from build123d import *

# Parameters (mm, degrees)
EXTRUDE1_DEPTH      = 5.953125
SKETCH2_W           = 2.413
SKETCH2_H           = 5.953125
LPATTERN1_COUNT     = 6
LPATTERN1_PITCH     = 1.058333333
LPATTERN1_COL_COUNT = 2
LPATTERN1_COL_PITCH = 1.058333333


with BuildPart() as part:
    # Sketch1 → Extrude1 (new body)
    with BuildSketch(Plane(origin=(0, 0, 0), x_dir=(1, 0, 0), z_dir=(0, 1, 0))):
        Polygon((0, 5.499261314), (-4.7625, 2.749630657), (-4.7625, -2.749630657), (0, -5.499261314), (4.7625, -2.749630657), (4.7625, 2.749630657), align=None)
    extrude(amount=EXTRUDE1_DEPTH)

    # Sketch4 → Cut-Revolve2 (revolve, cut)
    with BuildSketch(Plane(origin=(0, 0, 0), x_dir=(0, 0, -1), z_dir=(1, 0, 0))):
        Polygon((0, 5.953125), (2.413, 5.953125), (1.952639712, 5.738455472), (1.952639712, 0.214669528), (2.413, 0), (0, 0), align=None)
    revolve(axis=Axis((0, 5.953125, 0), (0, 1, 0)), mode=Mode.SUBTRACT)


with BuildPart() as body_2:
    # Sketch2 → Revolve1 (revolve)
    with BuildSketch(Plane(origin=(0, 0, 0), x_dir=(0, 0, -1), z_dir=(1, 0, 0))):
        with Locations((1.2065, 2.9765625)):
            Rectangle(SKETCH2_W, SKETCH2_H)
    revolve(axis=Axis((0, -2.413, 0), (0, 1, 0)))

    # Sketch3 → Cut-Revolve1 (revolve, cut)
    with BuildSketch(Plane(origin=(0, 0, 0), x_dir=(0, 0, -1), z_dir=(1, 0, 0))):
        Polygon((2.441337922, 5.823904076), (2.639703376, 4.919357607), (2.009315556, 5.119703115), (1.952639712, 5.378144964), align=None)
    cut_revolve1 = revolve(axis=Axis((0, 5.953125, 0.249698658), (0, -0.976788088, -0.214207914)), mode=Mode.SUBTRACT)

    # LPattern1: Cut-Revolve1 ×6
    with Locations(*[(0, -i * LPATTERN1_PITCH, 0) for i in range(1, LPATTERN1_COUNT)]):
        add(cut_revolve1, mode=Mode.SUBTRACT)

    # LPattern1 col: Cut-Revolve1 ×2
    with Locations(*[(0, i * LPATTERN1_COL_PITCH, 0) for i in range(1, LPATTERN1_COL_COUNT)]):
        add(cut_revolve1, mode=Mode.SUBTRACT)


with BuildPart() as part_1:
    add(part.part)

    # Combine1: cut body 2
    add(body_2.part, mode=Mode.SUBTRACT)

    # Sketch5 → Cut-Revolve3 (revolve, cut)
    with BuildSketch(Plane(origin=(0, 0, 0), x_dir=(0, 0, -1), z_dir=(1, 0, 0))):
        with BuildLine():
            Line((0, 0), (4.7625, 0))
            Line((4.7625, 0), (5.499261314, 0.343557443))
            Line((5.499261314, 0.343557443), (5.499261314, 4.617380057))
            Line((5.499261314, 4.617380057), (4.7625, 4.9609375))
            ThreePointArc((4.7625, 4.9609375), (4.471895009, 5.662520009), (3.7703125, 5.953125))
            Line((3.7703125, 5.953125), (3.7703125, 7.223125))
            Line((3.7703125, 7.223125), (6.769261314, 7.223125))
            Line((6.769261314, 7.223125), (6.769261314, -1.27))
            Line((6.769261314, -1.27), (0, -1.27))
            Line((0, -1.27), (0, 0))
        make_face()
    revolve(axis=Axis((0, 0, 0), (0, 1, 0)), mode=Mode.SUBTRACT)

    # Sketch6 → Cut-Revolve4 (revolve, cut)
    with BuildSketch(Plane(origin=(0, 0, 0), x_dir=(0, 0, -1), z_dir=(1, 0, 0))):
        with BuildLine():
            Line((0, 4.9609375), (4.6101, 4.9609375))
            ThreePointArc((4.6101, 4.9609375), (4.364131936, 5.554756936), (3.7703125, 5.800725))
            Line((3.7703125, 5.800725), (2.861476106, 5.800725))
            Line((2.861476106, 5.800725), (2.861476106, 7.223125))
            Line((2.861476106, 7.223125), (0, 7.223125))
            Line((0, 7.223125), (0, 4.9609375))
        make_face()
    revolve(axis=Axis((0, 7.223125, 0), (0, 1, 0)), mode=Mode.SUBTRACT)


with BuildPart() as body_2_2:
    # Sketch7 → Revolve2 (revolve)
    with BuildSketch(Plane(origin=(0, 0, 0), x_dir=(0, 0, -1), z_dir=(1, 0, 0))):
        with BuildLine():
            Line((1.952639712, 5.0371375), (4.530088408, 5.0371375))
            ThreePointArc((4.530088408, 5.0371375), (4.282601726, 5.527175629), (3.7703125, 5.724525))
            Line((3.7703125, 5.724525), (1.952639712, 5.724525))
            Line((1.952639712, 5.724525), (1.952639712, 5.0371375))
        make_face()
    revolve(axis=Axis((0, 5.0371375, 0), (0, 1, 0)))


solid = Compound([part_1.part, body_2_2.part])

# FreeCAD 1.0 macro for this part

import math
import FreeCAD as App
import Part
import Sketcher
from FreeCAD import Vector
Q = App.Units.Quantity


def add_polygon(sketch, points):
    """Adds a closed chain of lines whose ends are joined by coincident constraints."""
    first, n = sketch.GeometryCount, len(points)
    for a, b in zip(points, points[1:] + points[:1]):
        sketch.addGeometry(Part.LineSegment(App.Vector(*a, 0), App.Vector(*b, 0)), False)
    for i in range(n):
        sketch.addConstraint(Sketcher.Constraint("Coincident", first + i, 2, first + (i + 1) % n, 1))

doc = App.newDocument("Part")
body = doc.addObject("PartDesign::Body", "Body")

# Sketch on XZ plane
sketch1 = body.newObject("Sketcher::SketchObject", "Sketch")
sketch1.AttachmentSupport = (doc.getObject("XZ_Plane"), [""])
sketch1.MapMode = "FlatFace"
add_polygon(sketch1, [(0, -5.499261), (-4.7625, -2.749631), (-4.7625, 2.749631), (0, 5.499261), (4.7625, 2.749631), (4.7625, -2.749631)])  # lines 0-5
sketch1.addConstraint([
    Sketcher.Constraint("Vertical", 1),
    Sketcher.Constraint("Vertical", 4),
    Sketcher.Constraint("Symmetric", 0, 2, 3, 2, -1, 1),
    Sketcher.Constraint("Symmetric", 2, 2, 5, 2, -1, 1),
    Sketcher.Constraint("PointOnObject", 2, 2, -2),
    Sketcher.Constraint("Parallel", 2, 5),
    Sketcher.Constraint("Horizontal", 1, 2, 3, 2),
    Sketcher.Constraint("Angle", 0, Q("150 deg")),
    Sketcher.Constraint("DistanceX", 0, 2, -1, 1, Q("0.1875 in")),
    Sketcher.Constraint("DistanceY", 1, 1, 1, 2, 5.499261),
])
pad1 = body.newObject("PartDesign::Pad", "Pad")
pad1.Profile = sketch1
pad1.Length = Q("0.234375 in")
pad1.Reversed = True

# Sketch on YZ plane
sketch2 = body.newObject("Sketcher::SketchObject", "Sketch001")
sketch2.AttachmentSupport = (doc.getObject("YZ_Plane"), [""])
sketch2.MapMode = "FlatFace"
add_polygon(sketch2, [(5.953125, -2.413), (5.953125, 0), (0, 0), (0, -2.413), (0.21467, -1.95264), (5.738455, -1.95264)])  # lines 0-5
sketch2.addConstraint([
    Sketcher.Constraint("Vertical", 0),
    Sketcher.Constraint("Horizontal", 1),
    Sketcher.Constraint("Vertical", 2),
    Sketcher.Constraint("Horizontal", 4),
    Sketcher.Constraint("Coincident", 1, 2, -1, 1),
    Sketcher.Constraint("Horizontal", 2, 2, 5, 2),
    Sketcher.Constraint("Equal", 3, 5),
    Sketcher.Constraint("Angle", 3, Q("65 deg")),
    Sketcher.Constraint("DistanceX", 1, 2, 1, 1, Q("0.234375 in")),
    Sketcher.Constraint("DistanceY", 0, 1, 0, 2, Q("0.095 in")),
    Sketcher.Constraint("Distance", 3, 0.507951),
])
groove = body.newObject("PartDesign::Groove", "Groove")
groove.Profile = sketch2
groove.ReferenceAxis = (sketch2, ["H_Axis"])
groove.Angle = 360
body2 = doc.addObject("PartDesign::Body", "Body001")

# Sketch on YZ plane
sketch3 = body2.newObject("Sketcher::SketchObject", "Sketch002")
sketch3.AttachmentSupport = (doc.getObject("YZ_Plane001"), [""])
sketch3.MapMode = "FlatFace"
add_polygon(sketch3, [(5.953125, 0), (0, 0), (0, -2.413), (5.953125, -2.413)])  # lines 0-3
sketch3.addConstraint([
    Sketcher.Constraint("Horizontal", 0),
    Sketcher.Constraint("Vertical", 1),
    Sketcher.Constraint("Horizontal", 2),
    Sketcher.Constraint("Vertical", 3),
    Sketcher.Constraint("Coincident", 0, 2, -1, 1),
    Sketcher.Constraint("DistanceX", 0, 2, 0, 1, Q("0.234375 in")),
    Sketcher.Constraint("DistanceY", 1, 2, 1, 1, Q("0.095 in")),
])
revolution = body2.newObject("PartDesign::Revolution", "Revolution")
revolution.Profile = sketch3
revolution.ReferenceAxis = (sketch3, ["H_Axis"])
revolution.Angle = 360

# Sketch on YZ plane
sketch4 = body2.newObject("Sketcher::SketchObject", "Sketch003")
sketch4.AttachmentSupport = (doc.getObject("YZ_Plane001"), [""])
sketch4.MapMode = "FlatFace"
add_polygon(sketch4, [(4.919358, -2.639703), (5.823904, -2.441338), (5.378145, -1.95264), (5.119703, -2.009316)])  # lines 0-3
sketch4.addGeometry(Part.LineSegment(Vector(5.266772, 0.099183, 0), Vector(4.362226, -0.099183, 0)), True)  # axis
sketch4.addConstraint([
    Sketcher.Constraint("Parallel", 0, 2),
    Sketcher.Constraint("Parallel", 2, 4),
    Sketcher.Constraint("Equal", 1, 3),
    Sketcher.Constraint("Equal", 0, 4),
    Sketcher.Constraint("DistanceY", 0, 2, 1, 2, 0.488698),
    Sketcher.Constraint("DistanceX", 2, 2, 0, 2, 0.704201),
    Sketcher.Constraint("DistanceY", 2, 2, 4, 1, 2.108498),
    Sketcher.Constraint("Distance", 0, 0.926042),
    Sketcher.Constraint("Distance", 1, 0.661458),
    Sketcher.Constraint("DistanceY", 1, 2, -1, 1, 1.95264),
    Sketcher.Constraint("DistanceX", 2, 2, 4, 1, 0.147069),
    Sketcher.Constraint("DistanceX", -1, 1, 0, 2, 5.823904),
])
groove2 = body2.newObject("PartDesign::Groove", "Groove001")
groove2.Profile = sketch4
groove2.ReferenceAxis = (sketch4, ["Axis0"])
groove2.Angle = 360
doc.recompute()

linearpattern = body2.newObject("PartDesign::LinearPattern", "LinearPattern")
linearpattern.Originals = [groove2]
linearpattern.Direction = (doc.getObject("Y_Axis001"), [""])
linearpattern.Mode = "offset"
linearpattern.Offset = 1.058333
linearpattern.Occurrences = 6
linearpattern.Reversed = True
body2.Tip = linearpattern
doc.recompute()

linearpattern2 = body2.newObject("PartDesign::LinearPattern", "LinearPattern001")
linearpattern2.Originals = [groove2]
linearpattern2.Direction = (doc.getObject("Y_Axis001"), [""])
linearpattern2.Mode = "offset"
linearpattern2.Offset = 1.058333
linearpattern2.Occurrences = 2
body2.Tip = linearpattern2
doc.recompute()

boolean = body.newObject("PartDesign::Boolean", "Boolean")
boolean.Type = "Cut"
boolean.addObjects([body2])

# Sketch on YZ plane
sketch5 = body.newObject("Sketcher::SketchObject", "Sketch004")
sketch5.AttachmentSupport = (doc.getObject("YZ_Plane"), [""])
sketch5.MapMode = "FlatFace"
sketch5.addGeometry([
    Part.LineSegment(Vector(0, -4.7625, 0), Vector(0, 0, 0)),  # 0
    Part.LineSegment(Vector(0, 0, 0), Vector(-1.27, 0, 0)),  # 1
    Part.LineSegment(Vector(-1.27, 0, 0), Vector(-1.27, -6.769261, 0)),  # 2
    Part.LineSegment(Vector(-1.27, -6.769261, 0), Vector(7.223125, -6.769261, 0)),  # 3
    Part.LineSegment(Vector(7.223125, -6.769261, 0), Vector(7.223125, -3.770313, 0)),  # 4
    Part.LineSegment(Vector(7.223125, -3.770313, 0), Vector(5.953125, -3.770313, 0)),  # 5
    Part.ArcOfCircle(Part.Circle(Vector(4.960937, -3.770312, 0), Vector(0, 0, 1), 0.992188), math.radians(-90), math.radians(0)),  # 6
    Part.LineSegment(Vector(4.960938, -4.7625, 0), Vector(4.61738, -5.499261, 0)),  # 7
    Part.LineSegment(Vector(4.61738, -5.499261, 0), Vector(0.343557, -5.499261, 0)),  # 8
    Part.LineSegment(Vector(0.343557, -5.499261, 0), Vector(0, -4.7625, 0)),  # 9
], False)
sketch5.addConstraint([
    Sketcher.Constraint("Coincident", 0, 2, 1, 1),
    Sketcher.Constraint("Coincident", 1, 2, 2, 1),
    Sketcher.Constraint("Coincident", 2, 2, 3, 1),
    Sketcher.Constraint("Coincident", 3, 2, 4, 1),
    Sketcher.Constraint("Coincident", 4, 2, 5, 1),
    Sketcher.Constraint("Coincident", 5, 2, 6, 2),
    Sketcher.Constraint("Coincident", 6, 1, 7, 1),
    Sketcher.Constraint("Coincident", 7, 2, 8, 1),
    Sketcher.Constraint("Coincident", 8, 2, 9, 1),
    Sketcher.Constraint("Coincident", 9, 2, 0, 1),
    Sketcher.Constraint("Vertical", 0),
    Sketcher.Constraint("Horizontal", 1),
    Sketcher.Constraint("Vertical", 2),
    Sketcher.Constraint("Horizontal", 3),
    Sketcher.Constraint("Vertical", 4),
    Sketcher.Constraint("Horizontal", 5),
    Sketcher.Constraint("Horizontal", 8),
    Sketcher.Constraint("Coincident", 0, 2, -1, 1),
    Sketcher.Constraint("Horizontal", 6, 3, 4, 2),
    Sketcher.Constraint("Horizontal", 6, 1, 9, 2),
    Sketcher.Constraint("Equal", 1, 5),
    Sketcher.Constraint("Equal", 7, 9),
    Sketcher.Constraint("Angle", 7, Q("-115 deg")),
    Sketcher.Constraint("DistanceX", 1, 2, 1, 1, Q("0.05 in")),
    Sketcher.Constraint("DistanceY", 0, 1, 0, 2, Q("0.1875 in")),
    Sketcher.Constraint("DistanceY", 3, 2, 7, 2, Q("0.05 in")),
    Sketcher.Constraint("DistanceX", -1, 1, 5, 2, Q("0.234375 in")),
    Sketcher.Constraint("Radius", 6, 0.992188),
    Sketcher.Constraint("DistanceY", 2, 2, 2, 1, 6.769261),
    Sketcher.Constraint("DistanceX", 8, 2, 8, 1, 4.273823),
])
groove3 = body.newObject("PartDesign::Groove", "Groove002")
groove3.Profile = sketch5
groove3.ReferenceAxis = (sketch5, ["H_Axis"])
groove3.Angle = 360

# Sketch on YZ plane
sketch6 = body.newObject("Sketcher::SketchObject", "Sketch005")
sketch6.AttachmentSupport = (doc.getObject("YZ_Plane"), [""])
sketch6.MapMode = "FlatFace"
sketch6.addGeometry([
    Part.LineSegment(Vector(4.960938, 0, 0), Vector(4.960938, -4.6101, 0)),  # 0
    Part.ArcOfCircle(Part.Circle(Vector(4.960938, -3.770313, 0), Vector(0, 0, 1), 0.839788), math.radians(-90), math.radians(0)),  # 1
    Part.LineSegment(Vector(5.800725, -3.770313, 0), Vector(5.800725, -2.861476, 0)),  # 2
    Part.LineSegment(Vector(5.800725, -2.861476, 0), Vector(7.223125, -2.861476, 0)),  # 3
    Part.LineSegment(Vector(7.223125, -2.861476, 0), Vector(7.223125, 0, 0)),  # 4
    Part.LineSegment(Vector(7.223125, 0, 0), Vector(4.960938, 0, 0)),  # 5
], False)
sketch6.addConstraint([
    Sketcher.Constraint("Coincident", 0, 2, 1, 1),
    Sketcher.Constraint("Tangent", 1, 2, 2, 1),
    Sketcher.Constraint("Coincident", 2, 2, 3, 1),
    Sketcher.Constraint("Coincident", 3, 2, 4, 1),
    Sketcher.Constraint("Coincident", 4, 2, 5, 1),
    Sketcher.Constraint("Coincident", 5, 2, 0, 1),
    Sketcher.Constraint("Vertical", 0),
    Sketcher.Constraint("Vertical", 2),
    Sketcher.Constraint("Horizontal", 3),
    Sketcher.Constraint("Vertical", 4),
    Sketcher.Constraint("Horizontal", 5),
    Sketcher.Constraint("PointOnObject", 4, 2, -1),
    Sketcher.Constraint("Vertical", 1, 3, 0, 2),
    Sketcher.Constraint("DistanceX", 3, 1, 3, 2, Q("0.056 in")),
    Sketcher.Constraint("DistanceY", 0, 2, 0, 1, Q("0.1815 in")),
    Sketcher.Constraint("Radius", 1, 0.839788),
    Sketcher.Constraint("DistanceY", 2, 1, 2, 2, 0.908836),
    Sketcher.Constraint("DistanceX", -1, 1, 1, 3, 4.960938),
])
groove4 = body.newObject("PartDesign::Groove", "Groove003")
groove4.Profile = sketch6
groove4.ReferenceAxis = (sketch6, ["H_Axis"])
groove4.Angle = 360
body3 = doc.addObject("PartDesign::Body", "Body002")

# Sketch on YZ plane
sketch7 = body3.newObject("Sketcher::SketchObject", "Sketch006")
sketch7.AttachmentSupport = (doc.getObject("YZ_Plane002"), [""])
sketch7.MapMode = "FlatFace"
sketch7.addGeometry([
    Part.LineSegment(Vector(5.037138, -1.95264, 0), Vector(5.037138, -4.530088, 0)),
    Part.ArcOfCircle(Part.Circle(Vector(4.960937, -3.770312, 0), Vector(0, 0, 1), 0.763588), math.radians(-84.272801), math.radians(0)),
    Part.LineSegment(Vector(5.724525, -3.770313, 0), Vector(5.724525, -1.95264, 0)),
    Part.LineSegment(Vector(5.724525, -1.95264, 0), Vector(5.037138, -1.95264, 0)),
], False)
sketch7.addConstraint([
    Sketcher.Constraint("Coincident", 0, 2, 1, 1),
    Sketcher.Constraint("Tangent", 1, 2, 2, 1),
    Sketcher.Constraint("Coincident", 2, 2, 3, 1),
    Sketcher.Constraint("Coincident", 3, 2, 0, 1),
    Sketcher.Constraint("Vertical", 0),
    Sketcher.Constraint("Vertical", 2),
    Sketcher.Constraint("Horizontal", 3),
    Sketcher.Constraint("DistanceX", 1, 3, 0, 2, Q("0.003 in")),
    Sketcher.Constraint("Radius", 1, 0.763588),
    Sketcher.Constraint("DistanceY", 0, 2, 0, 1, 2.577449),
    Sketcher.Constraint("DistanceY", 0, 2, -1, 1, 4.530088),
    Sketcher.Constraint("DistanceX", -1, 1, 1, 3, 4.960937),
])
revolution2 = body3.newObject("PartDesign::Revolution", "Revolution001")
revolution2.Profile = sketch7
revolution2.ReferenceAxis = (sketch7, ["H_Axis"])
revolution2.Angle = 360

doc.recompute()
